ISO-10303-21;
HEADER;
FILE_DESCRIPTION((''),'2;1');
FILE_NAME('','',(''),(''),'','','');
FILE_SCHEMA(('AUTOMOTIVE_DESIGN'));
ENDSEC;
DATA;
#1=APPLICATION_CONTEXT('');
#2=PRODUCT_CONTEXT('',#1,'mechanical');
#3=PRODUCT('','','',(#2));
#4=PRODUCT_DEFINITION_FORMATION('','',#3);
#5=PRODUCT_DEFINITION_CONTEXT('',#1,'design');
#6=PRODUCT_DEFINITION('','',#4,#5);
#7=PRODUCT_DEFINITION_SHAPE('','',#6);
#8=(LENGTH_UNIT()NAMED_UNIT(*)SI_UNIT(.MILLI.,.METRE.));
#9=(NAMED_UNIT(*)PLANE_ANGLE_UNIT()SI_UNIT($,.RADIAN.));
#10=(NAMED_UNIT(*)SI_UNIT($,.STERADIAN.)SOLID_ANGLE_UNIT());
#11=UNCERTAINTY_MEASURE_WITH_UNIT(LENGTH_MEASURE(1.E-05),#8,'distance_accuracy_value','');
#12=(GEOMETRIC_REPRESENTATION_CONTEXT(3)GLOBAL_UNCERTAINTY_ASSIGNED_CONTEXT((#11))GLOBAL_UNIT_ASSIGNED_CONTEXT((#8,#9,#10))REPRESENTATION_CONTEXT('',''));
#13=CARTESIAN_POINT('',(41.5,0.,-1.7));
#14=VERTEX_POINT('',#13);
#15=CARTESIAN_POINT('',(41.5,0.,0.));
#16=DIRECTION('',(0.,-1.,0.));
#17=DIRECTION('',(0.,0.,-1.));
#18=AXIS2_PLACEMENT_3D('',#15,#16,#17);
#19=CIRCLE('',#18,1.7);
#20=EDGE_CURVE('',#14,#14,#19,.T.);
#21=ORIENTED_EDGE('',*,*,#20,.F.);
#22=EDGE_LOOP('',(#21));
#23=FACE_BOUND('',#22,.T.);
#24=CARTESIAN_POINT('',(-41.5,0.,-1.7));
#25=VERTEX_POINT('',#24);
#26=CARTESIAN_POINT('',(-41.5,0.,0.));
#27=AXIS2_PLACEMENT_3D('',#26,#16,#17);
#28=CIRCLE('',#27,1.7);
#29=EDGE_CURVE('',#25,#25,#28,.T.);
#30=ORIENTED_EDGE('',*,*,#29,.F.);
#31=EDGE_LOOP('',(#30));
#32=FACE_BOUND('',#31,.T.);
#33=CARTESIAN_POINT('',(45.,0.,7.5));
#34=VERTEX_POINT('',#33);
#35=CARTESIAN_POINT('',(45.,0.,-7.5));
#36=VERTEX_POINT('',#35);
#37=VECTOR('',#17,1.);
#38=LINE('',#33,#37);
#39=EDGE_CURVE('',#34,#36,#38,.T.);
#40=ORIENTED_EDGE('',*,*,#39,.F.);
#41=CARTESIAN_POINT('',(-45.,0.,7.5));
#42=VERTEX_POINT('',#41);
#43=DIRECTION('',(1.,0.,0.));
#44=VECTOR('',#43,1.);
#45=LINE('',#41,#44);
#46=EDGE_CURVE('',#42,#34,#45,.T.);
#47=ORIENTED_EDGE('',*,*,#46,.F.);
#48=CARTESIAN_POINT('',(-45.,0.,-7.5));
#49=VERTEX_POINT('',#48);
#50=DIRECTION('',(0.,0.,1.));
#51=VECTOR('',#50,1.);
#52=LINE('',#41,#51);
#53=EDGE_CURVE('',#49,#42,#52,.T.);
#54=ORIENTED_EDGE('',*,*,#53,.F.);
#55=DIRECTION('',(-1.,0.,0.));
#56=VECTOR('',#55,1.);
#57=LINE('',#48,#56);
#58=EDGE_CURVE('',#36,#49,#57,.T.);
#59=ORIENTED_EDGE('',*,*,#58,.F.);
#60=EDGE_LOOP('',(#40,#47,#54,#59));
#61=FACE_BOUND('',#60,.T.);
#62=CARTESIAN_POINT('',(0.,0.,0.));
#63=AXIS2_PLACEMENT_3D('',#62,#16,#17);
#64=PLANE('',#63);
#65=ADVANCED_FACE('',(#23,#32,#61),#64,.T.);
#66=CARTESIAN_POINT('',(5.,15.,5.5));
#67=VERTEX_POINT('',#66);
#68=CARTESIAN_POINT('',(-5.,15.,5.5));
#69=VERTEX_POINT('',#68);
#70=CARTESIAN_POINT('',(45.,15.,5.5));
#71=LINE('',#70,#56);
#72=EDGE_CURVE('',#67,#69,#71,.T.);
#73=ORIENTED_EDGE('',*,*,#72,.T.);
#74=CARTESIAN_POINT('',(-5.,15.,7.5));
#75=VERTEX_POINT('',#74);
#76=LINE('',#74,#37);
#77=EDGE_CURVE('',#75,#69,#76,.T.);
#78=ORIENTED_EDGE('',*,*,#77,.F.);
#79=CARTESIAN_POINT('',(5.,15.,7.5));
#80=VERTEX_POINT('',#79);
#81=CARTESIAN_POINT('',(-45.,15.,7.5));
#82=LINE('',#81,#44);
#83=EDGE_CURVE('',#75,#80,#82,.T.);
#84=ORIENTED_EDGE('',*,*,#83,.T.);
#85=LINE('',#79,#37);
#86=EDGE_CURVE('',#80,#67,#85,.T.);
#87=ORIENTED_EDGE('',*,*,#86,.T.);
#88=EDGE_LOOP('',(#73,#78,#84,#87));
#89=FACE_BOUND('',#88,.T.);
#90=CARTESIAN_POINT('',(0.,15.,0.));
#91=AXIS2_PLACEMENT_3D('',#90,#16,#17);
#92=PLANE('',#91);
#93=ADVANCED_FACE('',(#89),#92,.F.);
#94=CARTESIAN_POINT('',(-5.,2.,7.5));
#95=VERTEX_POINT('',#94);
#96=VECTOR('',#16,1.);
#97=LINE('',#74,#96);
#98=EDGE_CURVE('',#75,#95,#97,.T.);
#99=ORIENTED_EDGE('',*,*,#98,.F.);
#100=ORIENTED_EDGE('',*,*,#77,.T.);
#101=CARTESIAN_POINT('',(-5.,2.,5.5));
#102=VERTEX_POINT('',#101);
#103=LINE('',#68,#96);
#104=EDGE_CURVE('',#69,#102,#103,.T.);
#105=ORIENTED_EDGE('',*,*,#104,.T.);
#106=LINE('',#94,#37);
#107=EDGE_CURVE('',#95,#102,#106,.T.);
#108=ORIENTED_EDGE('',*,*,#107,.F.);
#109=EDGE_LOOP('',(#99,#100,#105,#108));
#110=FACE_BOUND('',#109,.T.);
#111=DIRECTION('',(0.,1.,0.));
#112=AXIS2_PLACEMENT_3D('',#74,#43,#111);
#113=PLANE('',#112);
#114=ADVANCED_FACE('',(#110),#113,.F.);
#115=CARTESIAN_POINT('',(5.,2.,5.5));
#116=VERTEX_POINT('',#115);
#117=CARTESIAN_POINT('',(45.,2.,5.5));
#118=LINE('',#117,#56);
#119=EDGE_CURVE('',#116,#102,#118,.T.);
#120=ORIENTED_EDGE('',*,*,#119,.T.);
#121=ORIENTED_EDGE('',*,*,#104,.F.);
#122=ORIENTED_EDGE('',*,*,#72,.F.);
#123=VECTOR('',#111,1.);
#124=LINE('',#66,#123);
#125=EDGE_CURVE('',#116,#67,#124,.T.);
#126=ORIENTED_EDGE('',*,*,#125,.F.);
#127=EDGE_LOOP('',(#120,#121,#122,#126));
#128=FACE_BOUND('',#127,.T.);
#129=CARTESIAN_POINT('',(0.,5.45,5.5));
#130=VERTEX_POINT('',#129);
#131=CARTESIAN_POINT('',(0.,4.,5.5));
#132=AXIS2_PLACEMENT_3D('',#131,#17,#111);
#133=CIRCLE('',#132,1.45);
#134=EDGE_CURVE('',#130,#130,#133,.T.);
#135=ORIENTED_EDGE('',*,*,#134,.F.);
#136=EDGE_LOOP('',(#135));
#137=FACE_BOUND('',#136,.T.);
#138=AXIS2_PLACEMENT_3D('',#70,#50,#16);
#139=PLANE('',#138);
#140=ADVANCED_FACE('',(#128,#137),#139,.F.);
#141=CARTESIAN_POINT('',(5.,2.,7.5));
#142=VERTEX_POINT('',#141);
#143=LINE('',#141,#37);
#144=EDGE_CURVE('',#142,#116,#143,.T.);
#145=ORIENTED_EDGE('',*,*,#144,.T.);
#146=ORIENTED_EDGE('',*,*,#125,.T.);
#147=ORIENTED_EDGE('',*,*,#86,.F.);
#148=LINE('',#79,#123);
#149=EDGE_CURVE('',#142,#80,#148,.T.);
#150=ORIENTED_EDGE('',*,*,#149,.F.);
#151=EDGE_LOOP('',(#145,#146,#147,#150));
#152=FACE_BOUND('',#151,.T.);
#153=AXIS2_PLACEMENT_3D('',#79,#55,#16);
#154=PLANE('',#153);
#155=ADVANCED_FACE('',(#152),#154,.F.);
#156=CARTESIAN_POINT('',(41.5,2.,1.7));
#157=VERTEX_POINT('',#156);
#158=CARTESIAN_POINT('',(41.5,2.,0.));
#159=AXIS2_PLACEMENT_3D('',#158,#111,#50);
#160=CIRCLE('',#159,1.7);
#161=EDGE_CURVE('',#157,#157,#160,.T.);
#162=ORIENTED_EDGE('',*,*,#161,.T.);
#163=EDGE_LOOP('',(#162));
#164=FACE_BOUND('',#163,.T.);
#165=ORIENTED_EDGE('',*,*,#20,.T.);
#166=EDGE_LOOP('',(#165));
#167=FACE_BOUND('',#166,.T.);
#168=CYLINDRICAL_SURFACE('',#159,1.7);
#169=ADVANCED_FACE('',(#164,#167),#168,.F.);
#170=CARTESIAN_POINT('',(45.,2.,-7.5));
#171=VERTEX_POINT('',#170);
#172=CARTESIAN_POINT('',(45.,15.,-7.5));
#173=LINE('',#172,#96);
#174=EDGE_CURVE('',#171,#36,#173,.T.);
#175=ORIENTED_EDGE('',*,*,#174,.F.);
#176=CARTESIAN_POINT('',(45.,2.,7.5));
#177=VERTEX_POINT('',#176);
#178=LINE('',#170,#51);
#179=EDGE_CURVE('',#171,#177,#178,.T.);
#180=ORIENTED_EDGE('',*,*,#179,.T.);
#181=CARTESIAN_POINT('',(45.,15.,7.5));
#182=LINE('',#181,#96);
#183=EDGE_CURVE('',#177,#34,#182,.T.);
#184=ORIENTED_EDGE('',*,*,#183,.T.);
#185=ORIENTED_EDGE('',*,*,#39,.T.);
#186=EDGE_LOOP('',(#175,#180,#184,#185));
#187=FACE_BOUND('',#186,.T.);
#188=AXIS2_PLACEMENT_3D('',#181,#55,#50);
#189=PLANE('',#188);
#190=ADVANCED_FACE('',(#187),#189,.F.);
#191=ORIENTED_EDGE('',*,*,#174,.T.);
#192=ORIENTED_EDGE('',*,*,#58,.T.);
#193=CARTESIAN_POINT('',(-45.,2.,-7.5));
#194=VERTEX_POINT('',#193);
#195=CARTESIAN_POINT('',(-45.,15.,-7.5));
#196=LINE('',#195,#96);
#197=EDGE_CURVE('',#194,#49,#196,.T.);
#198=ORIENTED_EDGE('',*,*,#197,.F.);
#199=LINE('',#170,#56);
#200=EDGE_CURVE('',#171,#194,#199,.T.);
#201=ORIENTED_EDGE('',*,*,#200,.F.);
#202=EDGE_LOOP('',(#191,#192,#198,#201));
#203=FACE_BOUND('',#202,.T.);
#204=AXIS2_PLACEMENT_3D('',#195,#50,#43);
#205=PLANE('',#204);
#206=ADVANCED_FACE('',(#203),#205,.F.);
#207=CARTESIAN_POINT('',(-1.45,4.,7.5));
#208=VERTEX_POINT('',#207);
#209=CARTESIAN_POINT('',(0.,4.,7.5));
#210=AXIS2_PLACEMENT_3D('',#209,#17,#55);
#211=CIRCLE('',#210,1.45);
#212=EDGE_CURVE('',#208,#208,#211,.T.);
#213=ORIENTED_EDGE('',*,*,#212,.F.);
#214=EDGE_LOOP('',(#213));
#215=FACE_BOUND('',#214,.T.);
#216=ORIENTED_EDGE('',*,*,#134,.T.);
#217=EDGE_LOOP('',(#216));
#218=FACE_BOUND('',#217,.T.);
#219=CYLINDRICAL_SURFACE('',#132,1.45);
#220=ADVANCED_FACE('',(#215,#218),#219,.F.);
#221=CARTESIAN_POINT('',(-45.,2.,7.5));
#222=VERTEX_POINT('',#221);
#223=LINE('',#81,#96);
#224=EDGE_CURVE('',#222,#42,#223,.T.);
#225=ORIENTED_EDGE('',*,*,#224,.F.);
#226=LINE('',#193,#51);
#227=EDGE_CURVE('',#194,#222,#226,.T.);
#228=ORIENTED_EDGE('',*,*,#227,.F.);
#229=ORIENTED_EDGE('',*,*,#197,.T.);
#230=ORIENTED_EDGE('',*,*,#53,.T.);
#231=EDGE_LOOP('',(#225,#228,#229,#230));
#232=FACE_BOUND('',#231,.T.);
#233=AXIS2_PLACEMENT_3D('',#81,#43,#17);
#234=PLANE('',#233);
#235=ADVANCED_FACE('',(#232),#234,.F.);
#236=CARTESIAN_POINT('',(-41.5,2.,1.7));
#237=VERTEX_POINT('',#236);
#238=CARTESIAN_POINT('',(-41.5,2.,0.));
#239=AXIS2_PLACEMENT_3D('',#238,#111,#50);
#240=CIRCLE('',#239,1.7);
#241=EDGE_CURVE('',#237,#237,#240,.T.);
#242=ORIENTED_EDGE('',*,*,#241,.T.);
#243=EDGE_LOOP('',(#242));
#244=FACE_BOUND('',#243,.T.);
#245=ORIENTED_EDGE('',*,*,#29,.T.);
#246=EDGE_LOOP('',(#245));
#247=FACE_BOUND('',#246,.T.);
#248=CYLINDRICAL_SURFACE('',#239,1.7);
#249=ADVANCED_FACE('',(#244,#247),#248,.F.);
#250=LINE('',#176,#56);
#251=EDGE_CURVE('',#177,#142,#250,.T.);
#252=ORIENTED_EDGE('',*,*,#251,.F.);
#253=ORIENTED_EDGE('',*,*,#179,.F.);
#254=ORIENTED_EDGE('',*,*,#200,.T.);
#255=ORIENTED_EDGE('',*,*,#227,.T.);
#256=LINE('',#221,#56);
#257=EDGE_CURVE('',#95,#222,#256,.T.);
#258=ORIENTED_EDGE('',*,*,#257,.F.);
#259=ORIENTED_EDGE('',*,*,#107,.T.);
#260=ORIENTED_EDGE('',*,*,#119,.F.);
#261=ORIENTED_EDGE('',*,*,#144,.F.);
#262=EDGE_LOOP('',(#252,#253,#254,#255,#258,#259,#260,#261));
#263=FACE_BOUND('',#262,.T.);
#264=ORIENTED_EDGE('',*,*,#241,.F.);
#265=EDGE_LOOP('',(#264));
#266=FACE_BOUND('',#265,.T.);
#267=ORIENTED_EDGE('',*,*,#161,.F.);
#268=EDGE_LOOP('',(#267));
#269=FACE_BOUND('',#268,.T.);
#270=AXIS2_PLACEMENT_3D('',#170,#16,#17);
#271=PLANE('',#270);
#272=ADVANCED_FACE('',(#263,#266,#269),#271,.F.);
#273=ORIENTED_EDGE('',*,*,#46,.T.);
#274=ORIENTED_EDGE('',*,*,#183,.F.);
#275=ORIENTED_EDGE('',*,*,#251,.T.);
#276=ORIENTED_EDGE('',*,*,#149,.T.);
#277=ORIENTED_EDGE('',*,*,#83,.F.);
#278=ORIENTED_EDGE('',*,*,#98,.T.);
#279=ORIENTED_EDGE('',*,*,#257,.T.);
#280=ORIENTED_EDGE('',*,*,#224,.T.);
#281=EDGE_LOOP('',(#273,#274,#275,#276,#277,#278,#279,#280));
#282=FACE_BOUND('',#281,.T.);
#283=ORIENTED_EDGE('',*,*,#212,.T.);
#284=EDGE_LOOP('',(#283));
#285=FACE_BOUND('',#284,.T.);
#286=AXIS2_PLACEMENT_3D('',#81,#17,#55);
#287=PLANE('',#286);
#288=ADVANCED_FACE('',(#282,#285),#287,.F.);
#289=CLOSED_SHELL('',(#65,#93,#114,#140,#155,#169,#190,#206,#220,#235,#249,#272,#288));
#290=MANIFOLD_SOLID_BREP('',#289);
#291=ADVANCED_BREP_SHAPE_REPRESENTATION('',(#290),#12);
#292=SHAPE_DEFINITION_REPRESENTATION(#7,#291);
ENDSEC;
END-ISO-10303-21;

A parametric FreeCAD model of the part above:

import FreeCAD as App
import Part
import Sketcher


def add_polygon(sketch, points):
    """Adds a closed chain of lines whose ends are joined by coincident constraints."""
    first, n = sketch.GeometryCount, len(points)
    for a, b in zip(points, points[1:] + points[:1]):
        sketch.addGeometry(Part.LineSegment(App.Vector(*a, 0), App.Vector(*b, 0)), False)
    for i in range(n):
        sketch.addConstraint(Sketcher.Constraint("Coincident", first + i, 2, first + (i + 1) % n, 1))

doc = App.newDocument("Part")
params = doc.addObject("Spreadsheet::Sheet", "Params")
for row, (alias, value) in enumerate([
    ("sketch1_width", "90 mm"),
    ("sketch1_height", "15 mm"),
    ("pad1_length", "15 mm"),
    ("sketch2_width", "13 mm"),
    ("sketch3_diameter", "3.4 mm"),
    ("hole_diameter", "3.4 mm"),
    ("hole_depth", "24 mm"),
    ("sketch4_width", "40 mm"),
    ("sketch4_height", "13 mm"),
    ("sketch5_diameter", "2.9 mm"),
    ("hole2_diameter", "2.9 mm"),
    ("hole2_depth", "24 mm"),
], start=1):
    params.set(f"A{row}", alias)
    params.set(f"B{row}", "=" + value)
    params.setAlias(f"B{row}", alias)

body = doc.addObject("PartDesign::Body", "Body")

# Sketch on XZ plane
sketch1 = body.newObject("Sketcher::SketchObject", "Sketch")
sketch1.AttachmentSupport = (doc.getObject("XZ_Plane"), [""])
sketch1.MapMode = "FlatFace"
add_polygon(sketch1, [(-45, -7.5), (-45, 7.5), (45, 7.5), (45, -7.5)])  # lines 0-3
sketch1.addConstraint([
    Sketcher.Constraint("Vertical", 0),
    Sketcher.Constraint("Horizontal", 1),
    Sketcher.Constraint("Vertical", 2),
    Sketcher.Constraint("Horizontal", 3),
    Sketcher.Constraint("Symmetric", 0, 2, 2, 2, -1, 1),
    Sketcher.Constraint("DistanceX", 1, 1, 1, 2, 90.0),
    Sketcher.Constraint("DistanceY", 0, 1, 0, 2, 15.0),
])
sketch1.setExpression("Constraints[9]", "Params.sketch1_width")
sketch1.setExpression("Constraints[10]", "Params.sketch1_height")
pad1 = body.newObject("PartDesign::Pad", "Pad")
pad1.Profile = sketch1
pad1.setExpression("Length", "Params.pad1_length")
pad1.Reversed = True

# Sketch on YZ plane
sketch2 = body.newObject("Sketcher::SketchObject", "Sketch001")
sketch2.AttachmentSupport = (doc.getObject("YZ_Plane"), [""])
sketch2.MapMode = "FlatFace"
sketch2.AttachmentOffset = App.Placement(App.Vector(0, 0, -45), App.Rotation())
add_polygon(sketch2, [(15, -7.5), (2, -7.5), (2, 5.5), (15, 5.5)])  # lines 0-3
sketch2.addConstraint([
    Sketcher.Constraint("Horizontal", 0),
    Sketcher.Constraint("Vertical", 1),
    Sketcher.Constraint("Horizontal", 2),
    Sketcher.Constraint("Vertical", 3),
    Sketcher.Constraint("Equal", 2, 1),
    Sketcher.Constraint("DistanceX", 0, 2, 0, 1, 13.0),
    Sketcher.Constraint("DistanceX", -1, 1, 0, 2, 2.0),
    Sketcher.Constraint("DistanceY", 0, 2, -1, 1, 7.5),
])
sketch2.setExpression("Constraints[9]", "Params.sketch2_width")
pocket1 = body.newObject("PartDesign::Pocket", "Pocket")
pocket1.Profile = sketch2
pocket1.Type = "ThroughAll"
pocket1.Reversed = True

# Sketch on XZ plane
sketch3 = body.newObject("Sketcher::SketchObject", "Sketch002")
sketch3.AttachmentSupport = (doc.getObject("XZ_Plane"), [""])
sketch3.MapMode = "FlatFace"
sketch3.AttachmentOffset = App.Placement(App.Vector(0, 0, -2), App.Rotation())
sketch3.addGeometry([
    Part.Circle(App.Vector(-41.5, 0, 0), App.Vector(0, 0, 1), 1.7),
    Part.Circle(App.Vector(41.5, 0, 0), App.Vector(0, 0, 1), 1.7),
], False)
sketch3.addConstraint([
    Sketcher.Constraint("Equal", 0, 1),
    Sketcher.Constraint("Symmetric", 0, 3, 1, 3, -1, 1),
    Sketcher.Constraint("PointOnObject", 0, 3, -1),
    Sketcher.Constraint("Diameter", 0, 3.4),
    Sketcher.Constraint("DistanceX", 0, 3, 1, 3, 83.0),
])
sketch3.setExpression("Constraints[3]", "Params.sketch3_diameter")
doc.recompute()
hole = body.newObject("PartDesign::Hole", "Hole")
hole.Profile = sketch3
hole.ThreadType = "None"
hole.setExpression("Diameter", "Params.hole_diameter")
hole.DepthType = "Dimension"
hole.setExpression("Depth", "Params.hole_depth")
hole.DrillPoint = "Angled"
hole.DrillPointAngle = 118
hole.Reversed = True

# Sketch on XY plane
sketch4 = body.newObject("Sketcher::SketchObject", "Sketch003")
sketch4.AttachmentSupport = (doc.getObject("XY_Plane"), [""])
sketch4.MapMode = "FlatFace"
sketch4.AttachmentOffset = App.Placement(App.Vector(0, 0, 5.5), App.Rotation())
add_polygon(sketch4, [(-5, 15), (-5, 2), (-45, 2), (-45, 15)])  # lines 0-3
add_polygon(sketch4, [(45, 15), (45, 2), (5, 2), (5, 15)])  # lines 4-7
sketch4.addConstraint([
    Sketcher.Constraint("Vertical", 0),
    Sketcher.Constraint("Horizontal", 1),
    Sketcher.Constraint("Vertical", 2),
    Sketcher.Constraint("Horizontal", 3),
    Sketcher.Constraint("Vertical", 4),
    Sketcher.Constraint("Horizontal", 5),
    Sketcher.Constraint("Vertical", 6),
    Sketcher.Constraint("Horizontal", 7),
    Sketcher.Constraint("Symmetric", 1, 2, 4, 2, -2),
    Sketcher.Constraint("Symmetric", 3, 2, 6, 2, -2),
    Sketcher.Constraint("DistanceX", 1, 2, 1, 1, 40.0),
    Sketcher.Constraint("DistanceY", 0, 2, 0, 1, 13.0),
    Sketcher.Constraint("DistanceX", 0, 2, -1, 1, 5.0),
    Sketcher.Constraint("DistanceY", -1, 1, 0, 2, 2.0),
])
sketch4.setExpression("Constraints[18]", "Params.sketch4_width")
sketch4.setExpression("Constraints[19]", "Params.sketch4_height")
pocket2 = body.newObject("PartDesign::Pocket", "Pocket001")
pocket2.Profile = sketch4
pocket2.Type = "ThroughAll"
pocket2.Reversed = True

# Sketch on XY plane
sketch5 = body.newObject("Sketcher::SketchObject", "Sketch004")
sketch5.AttachmentSupport = (doc.getObject("XY_Plane"), [""])
sketch5.MapMode = "FlatFace"
sketch5.AttachmentOffset = App.Placement(App.Vector(0, 0, 5.5), App.Rotation())
sketch5.addGeometry(Part.Circle(App.Vector(0, 4, 0), App.Vector(0, 0, 1), 1.45), False)
sketch5.addConstraint([
    Sketcher.Constraint("PointOnObject", 0, 3, -2),
    Sketcher.Constraint("Diameter", 0, 2.9),
    Sketcher.Constraint("DistanceY", -1, 1, 0, 3, 4.0),
])
sketch5.setExpression("Constraints[1]", "Params.sketch5_diameter")
doc.recompute()
hole2 = body.newObject("PartDesign::Hole", "Hole001")
hole2.Profile = sketch5
hole2.ThreadType = "None"
hole2.setExpression("Diameter", "Params.hole2_diameter")
hole2.DepthType = "Dimension"
hole2.setExpression("Depth", "Params.hole2_depth")
hole2.DrillPoint = "Angled"
hole2.DrillPointAngle = 118
hole2.Reversed = True

doc.recompute()
